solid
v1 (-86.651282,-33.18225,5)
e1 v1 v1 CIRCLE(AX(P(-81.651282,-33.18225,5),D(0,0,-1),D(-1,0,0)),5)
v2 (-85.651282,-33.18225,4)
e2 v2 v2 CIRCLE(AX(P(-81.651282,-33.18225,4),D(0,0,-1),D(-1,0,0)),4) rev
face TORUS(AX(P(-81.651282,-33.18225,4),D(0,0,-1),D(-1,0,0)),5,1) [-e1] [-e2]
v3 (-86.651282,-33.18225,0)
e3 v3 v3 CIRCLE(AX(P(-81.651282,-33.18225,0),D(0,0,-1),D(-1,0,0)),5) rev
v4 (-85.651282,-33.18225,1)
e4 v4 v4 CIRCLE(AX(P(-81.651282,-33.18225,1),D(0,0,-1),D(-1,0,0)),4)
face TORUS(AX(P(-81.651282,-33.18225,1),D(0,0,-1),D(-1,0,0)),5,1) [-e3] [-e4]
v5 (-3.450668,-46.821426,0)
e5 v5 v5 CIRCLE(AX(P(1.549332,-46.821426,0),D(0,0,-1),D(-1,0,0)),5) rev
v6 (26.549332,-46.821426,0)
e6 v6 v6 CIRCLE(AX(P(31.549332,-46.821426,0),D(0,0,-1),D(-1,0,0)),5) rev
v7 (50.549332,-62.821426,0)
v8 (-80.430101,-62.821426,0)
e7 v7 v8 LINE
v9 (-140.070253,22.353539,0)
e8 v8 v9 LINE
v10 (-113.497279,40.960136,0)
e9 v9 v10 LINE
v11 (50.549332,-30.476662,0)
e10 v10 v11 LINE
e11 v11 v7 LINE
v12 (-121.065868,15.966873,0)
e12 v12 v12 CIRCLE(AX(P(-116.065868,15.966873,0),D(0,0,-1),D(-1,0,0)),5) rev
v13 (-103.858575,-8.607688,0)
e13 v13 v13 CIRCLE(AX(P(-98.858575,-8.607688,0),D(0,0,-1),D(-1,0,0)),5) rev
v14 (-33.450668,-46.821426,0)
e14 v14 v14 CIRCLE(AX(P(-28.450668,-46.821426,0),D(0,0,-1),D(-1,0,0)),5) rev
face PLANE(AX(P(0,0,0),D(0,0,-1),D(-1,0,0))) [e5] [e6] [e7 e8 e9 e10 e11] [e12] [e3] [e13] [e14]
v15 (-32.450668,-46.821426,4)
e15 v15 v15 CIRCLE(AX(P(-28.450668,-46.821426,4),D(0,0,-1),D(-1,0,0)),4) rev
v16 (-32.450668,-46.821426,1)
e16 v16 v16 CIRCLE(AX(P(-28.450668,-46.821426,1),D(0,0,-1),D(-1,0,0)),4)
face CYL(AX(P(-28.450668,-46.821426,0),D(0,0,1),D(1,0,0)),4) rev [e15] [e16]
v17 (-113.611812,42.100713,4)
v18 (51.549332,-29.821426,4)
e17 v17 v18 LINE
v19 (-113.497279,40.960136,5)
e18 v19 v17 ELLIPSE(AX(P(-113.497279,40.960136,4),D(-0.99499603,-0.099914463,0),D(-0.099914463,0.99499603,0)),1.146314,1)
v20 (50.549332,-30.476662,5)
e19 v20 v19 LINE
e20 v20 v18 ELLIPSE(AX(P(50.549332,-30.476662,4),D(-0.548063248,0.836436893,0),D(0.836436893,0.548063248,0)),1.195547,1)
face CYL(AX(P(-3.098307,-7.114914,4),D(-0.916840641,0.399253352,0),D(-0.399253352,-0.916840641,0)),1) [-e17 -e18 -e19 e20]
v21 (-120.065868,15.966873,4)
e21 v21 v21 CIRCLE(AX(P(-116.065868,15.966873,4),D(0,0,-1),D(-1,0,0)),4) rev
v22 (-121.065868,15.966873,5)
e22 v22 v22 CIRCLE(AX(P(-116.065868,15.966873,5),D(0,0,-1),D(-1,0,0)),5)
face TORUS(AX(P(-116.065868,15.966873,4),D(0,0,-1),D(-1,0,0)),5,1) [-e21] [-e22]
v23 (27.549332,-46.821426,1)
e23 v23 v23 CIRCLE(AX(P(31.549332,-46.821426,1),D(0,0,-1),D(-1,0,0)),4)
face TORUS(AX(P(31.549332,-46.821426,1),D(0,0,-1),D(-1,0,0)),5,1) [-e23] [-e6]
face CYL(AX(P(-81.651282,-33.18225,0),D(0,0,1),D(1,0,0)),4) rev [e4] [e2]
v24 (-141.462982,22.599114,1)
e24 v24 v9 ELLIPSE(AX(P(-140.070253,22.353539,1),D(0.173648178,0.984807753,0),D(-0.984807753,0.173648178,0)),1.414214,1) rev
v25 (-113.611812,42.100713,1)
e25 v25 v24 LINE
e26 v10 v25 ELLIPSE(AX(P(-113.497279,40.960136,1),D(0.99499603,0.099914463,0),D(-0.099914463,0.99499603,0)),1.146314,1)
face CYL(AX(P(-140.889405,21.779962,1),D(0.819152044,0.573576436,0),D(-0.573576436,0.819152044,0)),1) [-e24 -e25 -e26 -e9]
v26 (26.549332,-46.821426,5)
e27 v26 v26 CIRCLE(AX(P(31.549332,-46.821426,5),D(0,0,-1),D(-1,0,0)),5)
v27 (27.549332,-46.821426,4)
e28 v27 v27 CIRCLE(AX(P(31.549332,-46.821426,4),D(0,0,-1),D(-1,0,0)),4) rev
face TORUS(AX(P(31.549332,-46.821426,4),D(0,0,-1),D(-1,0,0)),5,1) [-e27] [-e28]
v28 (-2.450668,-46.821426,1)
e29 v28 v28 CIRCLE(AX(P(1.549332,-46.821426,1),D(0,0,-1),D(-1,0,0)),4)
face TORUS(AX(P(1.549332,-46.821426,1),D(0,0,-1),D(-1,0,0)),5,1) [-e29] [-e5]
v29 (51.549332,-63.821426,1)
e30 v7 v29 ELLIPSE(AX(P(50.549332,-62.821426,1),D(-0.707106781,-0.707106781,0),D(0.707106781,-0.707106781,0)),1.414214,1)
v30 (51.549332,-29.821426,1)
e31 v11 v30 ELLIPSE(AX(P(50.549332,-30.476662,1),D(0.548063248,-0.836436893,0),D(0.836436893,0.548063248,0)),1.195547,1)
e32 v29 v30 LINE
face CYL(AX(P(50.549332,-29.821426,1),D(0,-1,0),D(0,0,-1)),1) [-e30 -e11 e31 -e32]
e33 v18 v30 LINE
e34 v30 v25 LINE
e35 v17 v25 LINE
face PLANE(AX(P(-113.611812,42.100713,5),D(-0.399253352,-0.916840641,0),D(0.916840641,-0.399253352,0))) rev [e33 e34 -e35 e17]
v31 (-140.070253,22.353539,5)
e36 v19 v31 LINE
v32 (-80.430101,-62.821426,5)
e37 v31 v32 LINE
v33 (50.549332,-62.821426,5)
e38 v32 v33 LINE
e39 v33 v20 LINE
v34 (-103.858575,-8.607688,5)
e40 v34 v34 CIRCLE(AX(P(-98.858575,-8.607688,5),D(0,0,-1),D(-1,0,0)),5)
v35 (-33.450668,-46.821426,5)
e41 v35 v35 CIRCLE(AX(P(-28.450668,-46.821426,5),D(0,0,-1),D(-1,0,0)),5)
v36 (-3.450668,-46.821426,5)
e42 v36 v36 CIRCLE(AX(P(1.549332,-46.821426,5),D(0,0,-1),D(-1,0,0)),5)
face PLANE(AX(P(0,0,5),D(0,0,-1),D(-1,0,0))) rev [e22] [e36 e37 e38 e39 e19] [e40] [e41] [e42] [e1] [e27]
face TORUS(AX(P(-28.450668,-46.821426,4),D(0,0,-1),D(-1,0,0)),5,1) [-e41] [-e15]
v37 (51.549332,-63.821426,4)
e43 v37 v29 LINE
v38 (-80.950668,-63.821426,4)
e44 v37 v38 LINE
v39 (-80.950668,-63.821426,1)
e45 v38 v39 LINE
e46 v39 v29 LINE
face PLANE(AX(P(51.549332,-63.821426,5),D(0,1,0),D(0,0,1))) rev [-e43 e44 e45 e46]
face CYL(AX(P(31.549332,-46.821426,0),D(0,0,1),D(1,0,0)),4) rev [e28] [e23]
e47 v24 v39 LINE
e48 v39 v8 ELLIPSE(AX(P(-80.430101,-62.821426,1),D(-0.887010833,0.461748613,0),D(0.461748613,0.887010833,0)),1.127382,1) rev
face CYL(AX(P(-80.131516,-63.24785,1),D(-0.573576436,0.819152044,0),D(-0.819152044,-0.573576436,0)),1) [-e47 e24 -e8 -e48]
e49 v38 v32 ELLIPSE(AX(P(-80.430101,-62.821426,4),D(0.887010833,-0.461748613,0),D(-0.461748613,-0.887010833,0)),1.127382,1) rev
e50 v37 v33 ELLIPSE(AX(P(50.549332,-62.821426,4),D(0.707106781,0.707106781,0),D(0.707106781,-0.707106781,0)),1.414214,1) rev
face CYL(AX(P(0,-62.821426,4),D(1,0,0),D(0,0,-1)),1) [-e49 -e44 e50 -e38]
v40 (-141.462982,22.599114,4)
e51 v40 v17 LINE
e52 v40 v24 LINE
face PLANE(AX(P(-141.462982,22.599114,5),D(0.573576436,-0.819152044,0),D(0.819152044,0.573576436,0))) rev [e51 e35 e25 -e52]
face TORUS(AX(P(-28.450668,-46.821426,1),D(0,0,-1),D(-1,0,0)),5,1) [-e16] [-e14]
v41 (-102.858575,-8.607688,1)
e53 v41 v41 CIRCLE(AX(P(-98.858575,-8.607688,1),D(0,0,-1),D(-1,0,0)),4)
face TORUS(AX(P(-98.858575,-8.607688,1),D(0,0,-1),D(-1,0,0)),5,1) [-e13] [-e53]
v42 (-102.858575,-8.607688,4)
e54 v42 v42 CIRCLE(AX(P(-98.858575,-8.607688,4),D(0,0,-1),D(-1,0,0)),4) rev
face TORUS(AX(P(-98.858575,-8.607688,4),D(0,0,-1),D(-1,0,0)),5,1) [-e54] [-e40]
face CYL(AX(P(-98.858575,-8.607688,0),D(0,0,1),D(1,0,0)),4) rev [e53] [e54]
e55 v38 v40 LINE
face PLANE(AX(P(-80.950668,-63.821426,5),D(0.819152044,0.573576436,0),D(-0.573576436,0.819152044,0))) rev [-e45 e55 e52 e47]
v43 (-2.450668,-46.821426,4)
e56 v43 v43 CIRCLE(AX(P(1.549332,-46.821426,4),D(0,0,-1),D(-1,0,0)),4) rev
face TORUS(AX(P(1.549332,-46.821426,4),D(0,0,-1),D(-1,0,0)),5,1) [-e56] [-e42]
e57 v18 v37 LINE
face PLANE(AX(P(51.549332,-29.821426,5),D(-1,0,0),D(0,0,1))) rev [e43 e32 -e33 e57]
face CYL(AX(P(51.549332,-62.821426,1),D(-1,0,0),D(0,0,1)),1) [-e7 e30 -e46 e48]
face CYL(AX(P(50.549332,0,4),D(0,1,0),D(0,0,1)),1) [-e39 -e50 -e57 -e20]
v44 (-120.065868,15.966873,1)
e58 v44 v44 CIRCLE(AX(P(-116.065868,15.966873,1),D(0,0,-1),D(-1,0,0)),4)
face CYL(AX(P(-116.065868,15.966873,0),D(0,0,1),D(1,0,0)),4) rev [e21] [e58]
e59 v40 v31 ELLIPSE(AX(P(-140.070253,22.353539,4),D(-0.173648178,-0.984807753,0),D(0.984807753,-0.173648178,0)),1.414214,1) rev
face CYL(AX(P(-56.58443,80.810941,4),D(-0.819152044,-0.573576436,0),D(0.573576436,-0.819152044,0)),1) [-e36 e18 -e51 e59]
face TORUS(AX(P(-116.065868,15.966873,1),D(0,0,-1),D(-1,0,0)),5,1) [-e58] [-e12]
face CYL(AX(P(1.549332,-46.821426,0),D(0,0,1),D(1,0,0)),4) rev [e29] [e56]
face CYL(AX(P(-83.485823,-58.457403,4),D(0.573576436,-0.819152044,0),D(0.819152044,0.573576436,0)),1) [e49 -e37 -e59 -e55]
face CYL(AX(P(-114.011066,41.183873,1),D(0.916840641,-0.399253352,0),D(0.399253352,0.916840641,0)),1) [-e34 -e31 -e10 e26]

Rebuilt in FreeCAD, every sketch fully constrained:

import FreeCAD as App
import Part
import Sketcher
Q = App.Units.Quantity


def edges_at(feature, points):
    """Names of the edges that pass closest to the given points."""
    edges = feature.Shape.Edges
    near = lambda p: min(range(len(edges)), key=lambda i: edges[i].distToShape(Part.Vertex(*p))[0])
    return sorted({f"Edge{near(p) + 1}" for p in points})


def add_polygon(sketch, points):
    """Adds a closed chain of lines whose ends are joined by coincident constraints."""
    first, n = sketch.GeometryCount, len(points)
    for a, b in zip(points, points[1:] + points[:1]):
        sketch.addGeometry(Part.LineSegment(App.Vector(*a, 0), App.Vector(*b, 0)), False)
    for i in range(n):
        sketch.addConstraint(Sketcher.Constraint("Coincident", first + i, 2, first + (i + 1) % n, 1))

doc = App.newDocument("Part")
body = doc.addObject("PartDesign::Body", "Body")

sketch1 = body.newObject("Sketcher::SketchObject", "Sketch")
sketch1.AttachmentSupport = (doc.getObject("XY_Plane"), [""])
sketch1.MapMode = "FlatFace"
add_polygon(sketch1, [(-114, 42), (-141, 23), (-81, -64), (52, -64), (52, -30)])
sketch1.addConstraint([
    Sketcher.Constraint("Horizontal", 2),
    Sketcher.Constraint("Vertical", 3),
    Sketcher.Constraint("Perpendicular", 0, 1),
    Sketcher.Constraint("DistanceY", 3, 1, 3, 2, 34.0),
    Sketcher.Constraint("Angle", 0, Q("-145 deg")),
    Sketcher.Constraint("Distance", 0, 34.0),
    Sketcher.Constraint("DistanceX", 2, 1, 2, 2, 132.5),
    Sketcher.Constraint("Distance", 1, 105.5),
    Sketcher.Constraint("DistanceX", 0, 2, -1, 1, 141.462982),
    Sketcher.Constraint("DistanceY", -1, 1, 0, 2, 22.599114),
])
pad1 = body.newObject("PartDesign::Pad", "Pad")
pad1.Profile = sketch1
pad1.Length = 5

sketch2 = body.newObject("Sketcher::SketchObject", "Sketch001")
sketch2.AttachmentSupport = (doc.getObject("XY_Plane"), [""])
sketch2.MapMode = "FlatFace"
sketch2.AttachmentOffset = App.Placement(App.Vector(0, 0, 5), App.Rotation())
sketch2.addGeometry([
    Part.Circle(App.Vector(-116.1, 16, 0), App.Vector(0, 0, 1), 4),
    Part.Circle(App.Vector(31.5, -46.8, 0), App.Vector(0, 0, 1), 4),
    Part.Circle(App.Vector(-98.9, -8.6, 0), App.Vector(0, 0, 1), 4),
    Part.Circle(App.Vector(-81.7, -33.2, 0), App.Vector(0, 0, 1), 4),
    Part.Circle(App.Vector(1.5, -46.8, 0), App.Vector(0, 0, 1), 4),
    Part.Circle(App.Vector(-28.5, -46.8, 0), App.Vector(0, 0, 1), 4),
], False)
sketch2.addConstraint([
    Sketcher.Constraint("Equal", 0, 1),
    Sketcher.Constraint("Equal", 1, 2),
    Sketcher.Constraint("Equal", 2, 3),
    Sketcher.Constraint("Equal", 3, 4),
    Sketcher.Constraint("Equal", 4, 5),
    Sketcher.Constraint("Horizontal", 1, 3, 4, 3),
    Sketcher.Constraint("Horizontal", 4, 3, 5, 3),
    Sketcher.Constraint("Diameter", 0, 8.0),
    Sketcher.Constraint("DistanceX", 4, 3, 1, 3, 30.0),
    Sketcher.Constraint("DistanceX", 5, 3, 4, 3, 30.0),
    Sketcher.Constraint("DistanceX", 0, 3, 1, 3, 147.615201),
    Sketcher.Constraint("DistanceY", 1, 3, 0, 3, 62.788299),
    Sketcher.Constraint("DistanceX", 0, 3, -1, 1, 116.065868),
    Sketcher.Constraint("DistanceY", 2, 3, -1, 1, 8.607688),
    Sketcher.Constraint("DistanceY", 3, 3, -1, 1, 33.18225),
    Sketcher.Constraint("DistanceY", 2, 3, 0, 3, 24.574561),
    Sketcher.Constraint("DistanceX", 2, 3, -1, 1, 98.858575),
    Sketcher.Constraint("DistanceX", 3, 3, -1, 1, 81.651282),
])
pocket1 = body.newObject("PartDesign::Pocket", "Pocket")
pocket1.Profile = sketch2
pocket1.Type = "ThroughAll"
doc.recompute()

fillet = body.newObject("PartDesign::Fillet", "Fillet")
fillet.Base = (pocket1, edges_at(pocket1, [
    (51.549, -46.821, 5),
    (-31.031, 6.14, 5),
    (-127.537, 32.35, 5),
    (27.549, -46.821, 0),
    (27.549, -46.821, 5),
    (-32.451, -46.821, 0),
    (-32.451, -46.821, 5),
    (-120.066, 15.967, 0),
    (-120.066, 15.967, 5),
    (-102.859, -8.608, 0),
    (-102.859, -8.608, 5),
    (-85.651, -33.182, 0),
    (-85.651, -33.182, 5),
    (-2.451, -46.821, 0),
    (-2.451, -46.821, 5),
    (-111.207, -20.611, 5),
    (-127.537, 32.35, 0),
    (-31.031, 6.14, 0),
    (51.549, -46.821, 0),
    (-14.701, -63.821, 0),
    (-111.207, -20.611, 0),
    (-14.701, -63.821, 5),
]))
fillet.Radius = 1

doc.recompute()
